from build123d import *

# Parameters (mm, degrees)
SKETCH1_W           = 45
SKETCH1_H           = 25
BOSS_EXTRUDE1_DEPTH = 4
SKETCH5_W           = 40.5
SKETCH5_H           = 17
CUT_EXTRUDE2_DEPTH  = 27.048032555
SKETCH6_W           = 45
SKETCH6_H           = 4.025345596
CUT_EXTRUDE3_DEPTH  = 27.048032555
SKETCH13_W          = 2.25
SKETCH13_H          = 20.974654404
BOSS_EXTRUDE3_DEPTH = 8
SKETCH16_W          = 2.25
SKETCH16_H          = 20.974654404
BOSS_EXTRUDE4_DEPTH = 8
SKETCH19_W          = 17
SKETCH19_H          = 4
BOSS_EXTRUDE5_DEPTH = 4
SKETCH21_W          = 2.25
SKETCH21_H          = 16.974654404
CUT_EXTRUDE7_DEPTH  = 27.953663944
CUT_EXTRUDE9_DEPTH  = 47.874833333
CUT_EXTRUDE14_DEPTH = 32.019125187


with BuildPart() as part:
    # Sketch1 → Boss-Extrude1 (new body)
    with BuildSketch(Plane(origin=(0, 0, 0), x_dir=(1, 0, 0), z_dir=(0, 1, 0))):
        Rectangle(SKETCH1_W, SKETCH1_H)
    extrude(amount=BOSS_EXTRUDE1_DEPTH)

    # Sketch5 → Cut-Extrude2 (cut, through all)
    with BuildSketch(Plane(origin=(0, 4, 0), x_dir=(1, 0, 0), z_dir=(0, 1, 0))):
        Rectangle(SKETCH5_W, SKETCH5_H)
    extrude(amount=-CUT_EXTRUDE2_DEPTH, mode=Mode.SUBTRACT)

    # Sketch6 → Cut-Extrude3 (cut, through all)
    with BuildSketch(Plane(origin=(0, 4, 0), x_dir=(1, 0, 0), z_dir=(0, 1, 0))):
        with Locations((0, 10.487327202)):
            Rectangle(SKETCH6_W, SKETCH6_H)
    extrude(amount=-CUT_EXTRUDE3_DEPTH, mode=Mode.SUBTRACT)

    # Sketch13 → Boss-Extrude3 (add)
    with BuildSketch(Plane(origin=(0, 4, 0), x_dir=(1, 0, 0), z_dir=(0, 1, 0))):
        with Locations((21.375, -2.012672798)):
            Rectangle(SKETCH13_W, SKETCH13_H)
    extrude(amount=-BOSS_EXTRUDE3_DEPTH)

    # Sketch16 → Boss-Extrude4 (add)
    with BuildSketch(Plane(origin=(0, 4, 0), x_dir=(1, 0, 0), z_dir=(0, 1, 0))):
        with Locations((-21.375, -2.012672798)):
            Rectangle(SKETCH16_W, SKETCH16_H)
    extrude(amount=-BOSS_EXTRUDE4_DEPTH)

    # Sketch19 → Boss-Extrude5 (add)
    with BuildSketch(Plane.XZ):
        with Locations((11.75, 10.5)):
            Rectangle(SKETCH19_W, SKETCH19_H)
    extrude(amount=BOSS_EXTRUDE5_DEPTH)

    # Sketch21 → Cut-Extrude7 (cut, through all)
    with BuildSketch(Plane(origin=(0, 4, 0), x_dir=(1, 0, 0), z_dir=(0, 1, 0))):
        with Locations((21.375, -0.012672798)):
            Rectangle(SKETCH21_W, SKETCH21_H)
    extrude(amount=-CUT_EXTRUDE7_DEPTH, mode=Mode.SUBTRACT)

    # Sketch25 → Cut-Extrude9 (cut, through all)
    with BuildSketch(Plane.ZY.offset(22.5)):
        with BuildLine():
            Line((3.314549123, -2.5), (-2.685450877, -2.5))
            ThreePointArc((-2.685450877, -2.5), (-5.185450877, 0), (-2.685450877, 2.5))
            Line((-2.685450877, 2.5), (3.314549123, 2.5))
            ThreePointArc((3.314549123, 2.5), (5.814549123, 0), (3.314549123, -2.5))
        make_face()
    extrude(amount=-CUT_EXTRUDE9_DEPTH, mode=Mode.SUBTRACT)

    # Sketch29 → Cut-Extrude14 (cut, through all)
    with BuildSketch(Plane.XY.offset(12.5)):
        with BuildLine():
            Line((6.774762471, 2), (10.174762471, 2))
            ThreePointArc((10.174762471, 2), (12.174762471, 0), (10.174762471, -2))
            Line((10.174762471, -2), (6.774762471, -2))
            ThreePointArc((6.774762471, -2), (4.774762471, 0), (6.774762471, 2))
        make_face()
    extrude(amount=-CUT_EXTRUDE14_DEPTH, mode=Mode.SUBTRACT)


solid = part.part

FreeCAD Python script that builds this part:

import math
import FreeCAD as App
import Part
import Sketcher

V = App.Vector
Q = App.Units.Quantity

doc = App.newDocument("Part")
body = doc.addObject("PartDesign::Body", "Body")

# Sketch on XZ plane
sketch1 = body.newObject("Sketcher::SketchObject", "Sketch")
sketch1.AttachmentSupport = (doc.getObject("XZ_Plane"), [""])
sketch1.MapMode = "FlatFace"
sketch1.addGeometry([
    Part.LineSegment(V(-22, -12, 0), V(-22, 12, 0)),
    Part.LineSegment(V(-22, 12, 0), V(22, 12, 0)),
    Part.LineSegment(V(22, 12, 0), V(22, -12, 0)),
    Part.LineSegment(V(22, -12, 0), V(-22, -12, 0)),
], False)
sketch1.addConstraint([
    Sketcher.Constraint("Coincident", 0, 2, 1, 1),
    Sketcher.Constraint("Coincident", 1, 2, 2, 1),
    Sketcher.Constraint("Coincident", 2, 2, 3, 1),
    Sketcher.Constraint("Coincident", 3, 2, 0, 1),
    Sketcher.Constraint("Vertical", 0),
    Sketcher.Constraint("Horizontal", 1),
    Sketcher.Constraint("Vertical", 2),
    Sketcher.Constraint("Horizontal", 3),
    Sketcher.Constraint("Symmetric", 0, 2, 2, 2, -1, 1),
    Sketcher.Constraint("DistanceX", 1, 1, 1, 2, Q("45 mm")),
    Sketcher.Constraint("DistanceY", 0, 1, 0, 2, Q("25 mm")),
])
pad1 = body.newObject("PartDesign::Pad", "Pad")
pad1.Profile = sketch1
pad1.Length = 4
pad1.Reversed = True

# Sketch on XZ plane
sketch2 = body.newObject("Sketcher::SketchObject", "Sketch001")
sketch2.AttachmentSupport = (doc.getObject("XZ_Plane"), [""])
sketch2.MapMode = "FlatFace"
sketch2.AttachmentOffset = App.Placement(V(0, 0, -4), App.Rotation())
sketch2.addGeometry([
    Part.LineSegment(V(-20, -8, 0), V(-20, 8, 0)),
    Part.LineSegment(V(-20, 8, 0), V(20, 8, 0)),
    Part.LineSegment(V(20, 8, 0), V(20, -8, 0)),
    Part.LineSegment(V(20, -8, 0), V(-20, -8, 0)),
], False)
sketch2.addConstraint([
    Sketcher.Constraint("Coincident", 0, 2, 1, 1),
    Sketcher.Constraint("Coincident", 1, 2, 2, 1),
    Sketcher.Constraint("Coincident", 2, 2, 3, 1),
    Sketcher.Constraint("Coincident", 3, 2, 0, 1),
    Sketcher.Constraint("Vertical", 0),
    Sketcher.Constraint("Horizontal", 1),
    Sketcher.Constraint("Vertical", 2),
    Sketcher.Constraint("Horizontal", 3),
    Sketcher.Constraint("Symmetric", 0, 2, 2, 2, -1, 1),
    Sketcher.Constraint("DistanceY", 0, 1, 0, 2, Q("17 mm")),
    Sketcher.Constraint("DistanceX", 1, 1, 1, 2, Q("40.5 mm")),
])
pocket1 = body.newObject("PartDesign::Pocket", "Pocket")
pocket1.Profile = sketch2
pocket1.Type = "ThroughAll"
pocket1.Reversed = True

# Sketch on XZ plane
sketch3 = body.newObject("Sketcher::SketchObject", "Sketch002")
sketch3.AttachmentSupport = (doc.getObject("XZ_Plane"), [""])
sketch3.MapMode = "FlatFace"
sketch3.AttachmentOffset = App.Placement(V(0, 0, -4), App.Rotation())
sketch3.addGeometry([
    Part.LineSegment(V(-22.5, -12.5, 0), V(-22.5, -8.5, 0)),
    Part.LineSegment(V(-22.5, -8.5, 0), V(22.5, -8.5, 0)),
    Part.LineSegment(V(22.5, -8.5, 0), V(22.5, -12.5, 0)),
    Part.LineSegment(V(22.5, -12.5, 0), V(-22.5, -12.5, 0)),
], False)
sketch3.addConstraint([
    Sketcher.Constraint("Coincident", 0, 2, 1, 1),
    Sketcher.Constraint("Coincident", 1, 2, 2, 1),
    Sketcher.Constraint("Coincident", 2, 2, 3, 1),
    Sketcher.Constraint("Coincident", 3, 2, 0, 1),
    Sketcher.Constraint("Vertical", 0),
    Sketcher.Constraint("Horizontal", 1),
    Sketcher.Constraint("Vertical", 2),
    Sketcher.Constraint("Horizontal", 3),
    Sketcher.Constraint("DistanceX", 1, 1, 1, 2, Q("45 mm")),
    Sketcher.Constraint("DistanceX", 0, 2, -1, 1, Q("22.5 mm")),
    Sketcher.Constraint("DistanceY", 2, 2, -1, 1, Q("12.5 mm")),
    Sketcher.Constraint("DistanceY", 0, 1, 0, 2, Q("4.025346 mm")),
])
pocket2 = body.newObject("PartDesign::Pocket", "Pocket001")
pocket2.Profile = sketch3
pocket2.Type = "ThroughAll"
pocket2.Reversed = True

# Sketch on XZ plane
sketch4 = body.newObject("Sketcher::SketchObject", "Sketch003")
sketch4.AttachmentSupport = (doc.getObject("XZ_Plane"), [""])
sketch4.MapMode = "FlatFace"
sketch4.AttachmentOffset = App.Placement(V(0, 0, -4), App.Rotation())
sketch4.addGeometry([
    Part.LineSegment(V(20.2, -8.5, 0), V(20.2, 12.5, 0)),
    Part.LineSegment(V(20.2, 12.5, 0), V(22.5, 12.5, 0)),
    Part.LineSegment(V(22.5, 12.5, 0), V(22.5, -8.5, 0)),
    Part.LineSegment(V(22.5, -8.5, 0), V(20.2, -8.5, 0)),
], False)
sketch4.addConstraint([
    Sketcher.Constraint("Coincident", 0, 2, 1, 1),
    Sketcher.Constraint("Coincident", 1, 2, 2, 1),
    Sketcher.Constraint("Coincident", 2, 2, 3, 1),
    Sketcher.Constraint("Coincident", 3, 2, 0, 1),
    Sketcher.Constraint("Vertical", 0),
    Sketcher.Constraint("Horizontal", 1),
    Sketcher.Constraint("Vertical", 2),
    Sketcher.Constraint("Horizontal", 3),
    Sketcher.Constraint("DistanceX", 1, 1, 1, 2, Q("2.25 mm")),
    Sketcher.Constraint("DistanceY", -1, 1, 0, 2, Q("12.5 mm")),
    Sketcher.Constraint("DistanceX", -1, 1, 1, 2, Q("22.5 mm")),
    Sketcher.Constraint("DistanceY", 0, 1, 0, 2, Q("20.974654 mm")),
])
pad2 = body.newObject("PartDesign::Pad", "Pad001")
pad2.Profile = sketch4
pad2.Length = 8

# Sketch on XZ plane
sketch5 = body.newObject("Sketcher::SketchObject", "Sketch004")
sketch5.AttachmentSupport = (doc.getObject("XZ_Plane"), [""])
sketch5.MapMode = "FlatFace"
sketch5.AttachmentOffset = App.Placement(V(0, 0, -4), App.Rotation())
sketch5.addGeometry([
    Part.LineSegment(V(-22.5, -8.5, 0), V(-22.5, 12.5, 0)),
    Part.LineSegment(V(-22.5, 12.5, 0), V(-20.2, 12.5, 0)),
    Part.LineSegment(V(-20.2, 12.5, 0), V(-20.2, -8.5, 0)),
    Part.LineSegment(V(-20.2, -8.5, 0), V(-22.5, -8.5, 0)),
], False)
sketch5.addConstraint([
    Sketcher.Constraint("Coincident", 0, 2, 1, 1),
    Sketcher.Constraint("Coincident", 1, 2, 2, 1),
    Sketcher.Constraint("Coincident", 2, 2, 3, 1),
    Sketcher.Constraint("Coincident", 3, 2, 0, 1),
    Sketcher.Constraint("Vertical", 0),
    Sketcher.Constraint("Horizontal", 1),
    Sketcher.Constraint("Vertical", 2),
    Sketcher.Constraint("Horizontal", 3),
    Sketcher.Constraint("DistanceX", 1, 1, 1, 2, Q("2.25 mm")),
    Sketcher.Constraint("DistanceX", 0, 2, -1, 1, Q("22.5 mm")),
    Sketcher.Constraint("DistanceY", -1, 1, 0, 2, Q("12.5 mm")),
    Sketcher.Constraint("DistanceY", 0, 1, 0, 2, Q("20.974654 mm")),
])
pad3 = body.newObject("PartDesign::Pad", "Pad002")
pad3.Profile = sketch5
pad3.Length = 8

# Sketch on XZ plane
sketch6 = body.newObject("Sketcher::SketchObject", "Sketch005")
sketch6.AttachmentSupport = (doc.getObject("XZ_Plane"), [""])
sketch6.MapMode = "FlatFace"
sketch6.addGeometry([
    Part.LineSegment(V(3.2, 12.5, 0), V(3.2, 8.5, 0)),
    Part.LineSegment(V(3.2, 8.5, 0), V(20.2, 8.5, 0)),
    Part.LineSegment(V(20.2, 8.5, 0), V(20.2, 12.5, 0)),
    Part.LineSegment(V(20.2, 12.5, 0), V(3.2, 12.5, 0)),
], False)
sketch6.addConstraint([
    Sketcher.Constraint("Coincident", 0, 2, 1, 1),
    Sketcher.Constraint("Coincident", 1, 2, 2, 1),
    Sketcher.Constraint("Coincident", 2, 2, 3, 1),
    Sketcher.Constraint("Coincident", 3, 2, 0, 1),
    Sketcher.Constraint("Vertical", 0),
    Sketcher.Constraint("Horizontal", 1),
    Sketcher.Constraint("Vertical", 2),
    Sketcher.Constraint("Horizontal", 3),
    Sketcher.Constraint("DistanceX", 1, 1, 1, 2, Q("17 mm")),
    Sketcher.Constraint("DistanceY", 0, 2, 0, 1, Q("4 mm")),
    Sketcher.Constraint("DistanceY", -1, 1, 0, 2, Q("8.5 mm")),
    Sketcher.Constraint("DistanceX", -1, 1, 0, 2, Q("3.25 mm")),
])
pad4 = body.newObject("PartDesign::Pad", "Pad003")
pad4.Profile = sketch6
pad4.Length = 4

# Sketch on XZ plane
sketch7 = body.newObject("Sketcher::SketchObject", "Sketch006")
sketch7.AttachmentSupport = (doc.getObject("XZ_Plane"), [""])
sketch7.MapMode = "FlatFace"
sketch7.AttachmentOffset = App.Placement(V(0, 0, -4), App.Rotation())
sketch7.addGeometry([
    Part.LineSegment(V(20.2, -8.5, 0), V(20.2, 8.5, 0)),
    Part.LineSegment(V(20.2, 8.5, 0), V(22.5, 8.5, 0)),
    Part.LineSegment(V(22.5, 8.5, 0), V(22.5, -8.5, 0)),
    Part.LineSegment(V(22.5, -8.5, 0), V(20.2, -8.5, 0)),
], False)
sketch7.addConstraint([
    Sketcher.Constraint("Coincident", 0, 2, 1, 1),
    Sketcher.Constraint("Coincident", 1, 2, 2, 1),
    Sketcher.Constraint("Coincident", 2, 2, 3, 1),
    Sketcher.Constraint("Coincident", 3, 2, 0, 1),
    Sketcher.Constraint("Vertical", 0),
    Sketcher.Constraint("Horizontal", 1),
    Sketcher.Constraint("Vertical", 2),
    Sketcher.Constraint("Horizontal", 3),
    Sketcher.Constraint("DistanceX", 1, 1, 1, 2, Q("2.25 mm")),
    Sketcher.Constraint("DistanceY", -1, 1, 0, 2, Q("8.5 mm")),
    Sketcher.Constraint("DistanceX", -1, 1, 1, 2, Q("22.5 mm")),
    Sketcher.Constraint("DistanceY", 0, 1, 0, 2, Q("16.974654 mm")),
])
pocket3 = body.newObject("PartDesign::Pocket", "Pocket002")
pocket3.Profile = sketch7
pocket3.Type = "ThroughAll"
pocket3.Reversed = True

# Sketch on YZ plane
sketch8 = body.newObject("Sketcher::SketchObject", "Sketch007")
sketch8.AttachmentSupport = (doc.getObject("YZ_Plane"), [""])
sketch8.MapMode = "FlatFace"
sketch8.AttachmentOffset = App.Placement(V(0, 0, -22.5), App.Rotation())
sketch8.addGeometry([
    Part.LineSegment(V(-2.5, -2.7, 0), V(-2.5, 3.3, 0)),
    Part.ArcOfCircle(Part.Circle(V(0, 3.3, 0), V(0, 0, 1), 2.5), math.radians(0), math.radians(180)),
    Part.LineSegment(V(2.5, 3.3, 0), V(2.5, -2.7, 0)),
    Part.ArcOfCircle(Part.Circle(V(0, -2.7, 0), V(0, 0, 1), 2.5), math.radians(180), math.radians(360)),
], False)
sketch8.addConstraint([
    Sketcher.Constraint("Tangent", 0, 2, 1, 2),
    Sketcher.Constraint("Tangent", 1, 1, 2, 1),
    Sketcher.Constraint("Tangent", 2, 2, 3, 2),
    Sketcher.Constraint("Tangent", 3, 1, 0, 1),
    Sketcher.Constraint("Vertical", 0),
    Sketcher.Constraint("Vertical", 2),
    Sketcher.Constraint("PointOnObject", 1, 3, -2),
    Sketcher.Constraint("Radius", 1, Q("2.5 mm")),
    Sketcher.Constraint("DistanceY", 0, 1, 0, 2, Q("6 mm")),
    Sketcher.Constraint("DistanceY", -1, 1, 1, 3, Q("3.314549 mm")),
])
pocket4 = body.newObject("PartDesign::Pocket", "Pocket003")
pocket4.Profile = sketch8
pocket4.Type = "ThroughAll"
pocket4.Reversed = True

# Sketch on XY plane
sketch9 = body.newObject("Sketcher::SketchObject", "Sketch008")
sketch9.AttachmentSupport = (doc.getObject("XY_Plane"), [""])
sketch9.MapMode = "FlatFace"
sketch9.AttachmentOffset = App.Placement(V(0, 0, 12.5), App.Rotation())
sketch9.addGeometry([
    Part.LineSegment(V(10.2, 2, 0), V(6.8, 2, 0)),
    Part.ArcOfCircle(Part.Circle(V(6.8, 0, 0), V(0, 0, 1), 2), math.radians(90), math.radians(270)),
    Part.LineSegment(V(6.8, -2, 0), V(10.2, -2, 0)),
    Part.ArcOfCircle(Part.Circle(V(10.2, 0, 0), V(0, 0, 1), 2), math.radians(-90), math.radians(90)),
], False)
sketch9.addConstraint([
    Sketcher.Constraint("Tangent", 0, 2, 1, 1),
    Sketcher.Constraint("Tangent", 1, 2, 2, 1),
    Sketcher.Constraint("Tangent", 2, 2, 3, 1),
    Sketcher.Constraint("Tangent", 3, 2, 0, 1),
    Sketcher.Constraint("Horizontal", 0),
    Sketcher.Constraint("Horizontal", 2),
    Sketcher.Constraint("PointOnObject", 1, 3, -1),
    Sketcher.Constraint("Radius", 1, Q("2 mm")),
    Sketcher.Constraint("DistanceX", 0, 2, 0, 1, Q("3.4 mm")),
    Sketcher.Constraint("DistanceX", -1, 1, 1, 3, Q("6.774762 mm")),
])
pocket5 = body.newObject("PartDesign::Pocket", "Pocket004")
pocket5.Profile = sketch9
pocket5.Type = "ThroughAll"

doc.recompute()
